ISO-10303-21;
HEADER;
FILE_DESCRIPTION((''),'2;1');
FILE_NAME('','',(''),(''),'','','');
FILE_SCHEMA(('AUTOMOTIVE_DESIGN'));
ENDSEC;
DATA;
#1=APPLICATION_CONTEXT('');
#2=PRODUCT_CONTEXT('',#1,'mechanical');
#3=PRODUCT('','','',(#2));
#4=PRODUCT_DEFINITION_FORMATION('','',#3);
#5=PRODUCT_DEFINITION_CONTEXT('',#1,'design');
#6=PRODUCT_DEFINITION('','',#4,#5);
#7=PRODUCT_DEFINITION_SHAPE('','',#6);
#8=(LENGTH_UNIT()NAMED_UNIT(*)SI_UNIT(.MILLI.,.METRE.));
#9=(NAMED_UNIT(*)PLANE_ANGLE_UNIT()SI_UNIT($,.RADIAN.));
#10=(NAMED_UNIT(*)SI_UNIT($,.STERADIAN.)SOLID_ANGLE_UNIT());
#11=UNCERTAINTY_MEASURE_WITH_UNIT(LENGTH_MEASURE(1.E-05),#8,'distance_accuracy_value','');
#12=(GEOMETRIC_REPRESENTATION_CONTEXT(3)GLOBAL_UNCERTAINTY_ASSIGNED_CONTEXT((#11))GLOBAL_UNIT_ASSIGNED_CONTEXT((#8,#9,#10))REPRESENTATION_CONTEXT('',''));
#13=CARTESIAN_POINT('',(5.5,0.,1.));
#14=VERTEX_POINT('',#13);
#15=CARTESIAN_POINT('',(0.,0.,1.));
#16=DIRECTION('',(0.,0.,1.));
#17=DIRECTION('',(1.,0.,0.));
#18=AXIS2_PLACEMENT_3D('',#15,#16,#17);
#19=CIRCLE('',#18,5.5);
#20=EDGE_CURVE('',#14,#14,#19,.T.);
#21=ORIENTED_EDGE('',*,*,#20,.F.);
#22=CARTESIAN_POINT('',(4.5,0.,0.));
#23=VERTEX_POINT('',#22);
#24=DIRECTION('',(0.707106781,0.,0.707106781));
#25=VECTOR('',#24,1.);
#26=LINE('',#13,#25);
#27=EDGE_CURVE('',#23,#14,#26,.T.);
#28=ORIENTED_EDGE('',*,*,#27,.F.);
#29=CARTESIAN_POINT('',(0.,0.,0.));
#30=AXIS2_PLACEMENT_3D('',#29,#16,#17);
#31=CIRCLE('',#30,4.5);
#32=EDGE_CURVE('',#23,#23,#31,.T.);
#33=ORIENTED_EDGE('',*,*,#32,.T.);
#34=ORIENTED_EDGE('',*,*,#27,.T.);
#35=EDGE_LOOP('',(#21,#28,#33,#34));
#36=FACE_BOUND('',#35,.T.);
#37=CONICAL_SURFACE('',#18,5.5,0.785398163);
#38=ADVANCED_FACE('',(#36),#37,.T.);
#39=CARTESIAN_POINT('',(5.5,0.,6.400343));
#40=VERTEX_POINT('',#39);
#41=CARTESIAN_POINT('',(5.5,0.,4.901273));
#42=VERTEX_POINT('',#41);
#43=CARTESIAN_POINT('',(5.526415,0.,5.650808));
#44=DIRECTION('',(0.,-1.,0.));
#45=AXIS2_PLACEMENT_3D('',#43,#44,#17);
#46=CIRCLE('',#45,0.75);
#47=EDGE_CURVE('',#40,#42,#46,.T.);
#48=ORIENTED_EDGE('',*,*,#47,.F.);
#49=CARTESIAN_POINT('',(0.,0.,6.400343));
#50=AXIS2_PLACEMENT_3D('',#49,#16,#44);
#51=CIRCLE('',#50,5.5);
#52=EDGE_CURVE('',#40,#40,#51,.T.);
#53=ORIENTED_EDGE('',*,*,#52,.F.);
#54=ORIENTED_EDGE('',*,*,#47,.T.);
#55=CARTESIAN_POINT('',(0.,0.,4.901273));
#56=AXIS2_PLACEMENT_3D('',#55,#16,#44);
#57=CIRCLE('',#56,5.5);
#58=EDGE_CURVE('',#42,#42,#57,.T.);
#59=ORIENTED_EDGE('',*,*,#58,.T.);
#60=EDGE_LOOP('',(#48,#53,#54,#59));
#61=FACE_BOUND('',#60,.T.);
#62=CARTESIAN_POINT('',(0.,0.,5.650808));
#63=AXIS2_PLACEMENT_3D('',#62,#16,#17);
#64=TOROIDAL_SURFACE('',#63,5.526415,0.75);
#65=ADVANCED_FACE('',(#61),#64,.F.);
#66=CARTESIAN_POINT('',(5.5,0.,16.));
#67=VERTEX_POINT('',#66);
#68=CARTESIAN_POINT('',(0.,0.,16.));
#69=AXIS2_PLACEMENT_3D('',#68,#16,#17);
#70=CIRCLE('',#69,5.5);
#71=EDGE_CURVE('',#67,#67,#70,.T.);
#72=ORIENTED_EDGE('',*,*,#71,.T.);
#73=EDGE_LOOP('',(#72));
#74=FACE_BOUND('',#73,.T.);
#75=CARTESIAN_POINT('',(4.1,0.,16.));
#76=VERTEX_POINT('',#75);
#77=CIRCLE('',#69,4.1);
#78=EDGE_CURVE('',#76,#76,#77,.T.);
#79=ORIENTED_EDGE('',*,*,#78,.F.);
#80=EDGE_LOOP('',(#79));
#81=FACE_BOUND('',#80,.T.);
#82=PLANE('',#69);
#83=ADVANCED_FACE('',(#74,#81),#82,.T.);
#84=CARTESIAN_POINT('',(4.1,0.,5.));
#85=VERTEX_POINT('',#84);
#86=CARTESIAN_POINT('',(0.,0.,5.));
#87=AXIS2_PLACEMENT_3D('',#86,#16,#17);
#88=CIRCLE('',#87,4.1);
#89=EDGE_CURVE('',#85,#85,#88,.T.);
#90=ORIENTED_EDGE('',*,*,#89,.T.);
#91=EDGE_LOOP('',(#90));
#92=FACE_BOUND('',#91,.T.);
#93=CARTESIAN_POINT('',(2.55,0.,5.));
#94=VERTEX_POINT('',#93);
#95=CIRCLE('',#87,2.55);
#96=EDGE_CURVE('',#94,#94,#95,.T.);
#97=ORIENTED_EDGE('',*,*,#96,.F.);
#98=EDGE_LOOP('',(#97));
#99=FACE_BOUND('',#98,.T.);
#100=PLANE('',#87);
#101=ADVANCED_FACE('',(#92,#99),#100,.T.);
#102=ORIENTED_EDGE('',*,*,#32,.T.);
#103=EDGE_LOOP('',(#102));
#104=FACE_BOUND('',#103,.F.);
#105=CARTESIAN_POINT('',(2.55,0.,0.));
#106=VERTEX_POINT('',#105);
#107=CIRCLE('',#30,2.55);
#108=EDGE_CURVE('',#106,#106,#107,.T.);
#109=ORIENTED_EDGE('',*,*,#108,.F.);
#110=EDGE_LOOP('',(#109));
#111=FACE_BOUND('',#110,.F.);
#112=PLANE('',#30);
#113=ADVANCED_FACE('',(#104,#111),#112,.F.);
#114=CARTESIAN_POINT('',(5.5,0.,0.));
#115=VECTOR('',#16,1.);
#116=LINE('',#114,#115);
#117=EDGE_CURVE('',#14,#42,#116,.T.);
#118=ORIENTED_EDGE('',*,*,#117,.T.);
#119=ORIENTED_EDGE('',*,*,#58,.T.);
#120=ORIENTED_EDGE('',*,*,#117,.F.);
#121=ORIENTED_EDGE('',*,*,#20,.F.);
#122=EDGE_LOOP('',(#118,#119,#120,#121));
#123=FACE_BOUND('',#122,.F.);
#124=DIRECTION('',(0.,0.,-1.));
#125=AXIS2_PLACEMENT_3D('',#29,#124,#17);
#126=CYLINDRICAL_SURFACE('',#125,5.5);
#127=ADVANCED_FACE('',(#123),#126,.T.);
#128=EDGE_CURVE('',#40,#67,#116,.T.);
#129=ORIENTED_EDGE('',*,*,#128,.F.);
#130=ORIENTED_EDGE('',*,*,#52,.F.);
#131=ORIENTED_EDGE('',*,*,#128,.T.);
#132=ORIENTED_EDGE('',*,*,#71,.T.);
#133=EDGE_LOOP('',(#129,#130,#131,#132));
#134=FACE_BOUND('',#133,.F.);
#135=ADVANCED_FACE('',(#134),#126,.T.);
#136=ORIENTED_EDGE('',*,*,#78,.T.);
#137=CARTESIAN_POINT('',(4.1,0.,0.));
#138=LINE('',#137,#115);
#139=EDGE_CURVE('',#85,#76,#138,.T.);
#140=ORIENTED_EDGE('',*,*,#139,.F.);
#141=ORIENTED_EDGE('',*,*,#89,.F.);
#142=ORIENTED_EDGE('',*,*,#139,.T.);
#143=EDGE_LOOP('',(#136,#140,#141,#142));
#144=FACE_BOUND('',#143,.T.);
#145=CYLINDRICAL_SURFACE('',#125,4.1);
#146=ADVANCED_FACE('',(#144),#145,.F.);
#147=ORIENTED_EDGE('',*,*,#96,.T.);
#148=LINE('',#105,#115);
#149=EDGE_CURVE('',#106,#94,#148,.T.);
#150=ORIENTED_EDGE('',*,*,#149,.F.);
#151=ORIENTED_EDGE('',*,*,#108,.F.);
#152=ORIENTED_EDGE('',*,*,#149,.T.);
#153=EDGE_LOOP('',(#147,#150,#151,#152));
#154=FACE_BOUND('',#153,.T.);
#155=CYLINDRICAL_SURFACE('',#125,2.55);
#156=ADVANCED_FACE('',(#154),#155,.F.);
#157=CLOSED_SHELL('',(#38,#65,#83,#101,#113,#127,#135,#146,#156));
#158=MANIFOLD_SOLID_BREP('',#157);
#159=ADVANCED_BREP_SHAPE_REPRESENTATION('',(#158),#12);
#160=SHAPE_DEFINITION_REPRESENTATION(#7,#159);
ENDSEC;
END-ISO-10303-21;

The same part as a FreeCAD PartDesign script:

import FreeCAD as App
import Part
import Sketcher
Q = App.Units.Quantity


def edges_at(feature, points):
    """Names of the edges that pass closest to the given points."""
    edges = feature.Shape.Edges
    near = lambda p: min(range(len(edges)), key=lambda i: edges[i].distToShape(Part.Vertex(*p))[0])
    return sorted({f"Edge{near(p) + 1}" for p in points})

doc = App.newDocument("Part")
params = doc.addObject("Spreadsheet::Sheet", "Params")
for row, (alias, value) in enumerate([
    ("sketch1_diameter", "11 mm"),
    ("sketch1_diameter2", "8.2 mm"),
    ("pad1_length", "16 mm"),
    ("sketch2_diameter", "8.2 mm"),
    ("sketch2_diameter2", "5.1 mm"),
    ("pad2_length", "5 mm"),
    ("chamfer_size", "1 mm"),
    ("sketch3_diameter", "1.5 mm"),
    ("groove_angle", "360 deg"),
], start=1):
    params.set(f"A{row}", alias)
    params.set(f"B{row}", "=" + value)
    params.setAlias(f"B{row}", alias)

body = doc.addObject("PartDesign::Body", "Body")

sketch1 = body.newObject("Sketcher::SketchObject", "Sketch")
sketch1.AttachmentSupport = (doc.getObject("XY_Plane"), [""])
sketch1.MapMode = "FlatFace"
sketch1.addGeometry([
    Part.Circle(App.Vector(0, 0, 0), App.Vector(0, 0, 1), 5.5),
    Part.Circle(App.Vector(0, 0, 0), App.Vector(0, 0, 1), 4.1),
], False)
sketch1.addConstraint([
    Sketcher.Constraint("Coincident", 0, 3, -1, 1),
    Sketcher.Constraint("Coincident", 1, 3, -1, 1),
    Sketcher.Constraint("Diameter", 0, Q("11 mm")),
    Sketcher.Constraint("Diameter", 1, Q("8.2 mm")),
])
sketch1.setExpression("Constraints[2]", "Params.sketch1_diameter")
sketch1.setExpression("Constraints[3]", "Params.sketch1_diameter2")
pad1 = body.newObject("PartDesign::Pad", "Pad")
pad1.Profile = sketch1
pad1.setExpression("Length", "Params.pad1_length")

sketch2 = body.newObject("Sketcher::SketchObject", "Sketch001")
sketch2.AttachmentSupport = (doc.getObject("XY_Plane"), [""])
sketch2.MapMode = "FlatFace"
sketch2.addGeometry([
    Part.Circle(App.Vector(0, 0, 0), App.Vector(0, 0, 1), 4.1),
    Part.Circle(App.Vector(0, 0, 0), App.Vector(0, 0, 1), 2.5),
], False)
sketch2.addConstraint([
    Sketcher.Constraint("Coincident", 0, 3, -1, 1),
    Sketcher.Constraint("Coincident", 1, 3, -1, 1),
    Sketcher.Constraint("Diameter", 0, Q("8.2 mm")),
    Sketcher.Constraint("Diameter", 1, Q("5.1 mm")),
])
sketch2.setExpression("Constraints[2]", "Params.sketch2_diameter")
sketch2.setExpression("Constraints[3]", "Params.sketch2_diameter2")
pad2 = body.newObject("PartDesign::Pad", "Pad001")
pad2.Profile = sketch2
pad2.setExpression("Length", "Params.pad2_length")
doc.recompute()

chamfer = body.newObject("PartDesign::Chamfer", "Chamfer")
chamfer.Base = (pad2, edges_at(pad2, [(-5.5, 0, 0)]))
chamfer.setExpression("Size", "Params.chamfer_size")

sketch3 = body.newObject("Sketcher::SketchObject", "Sketch002")
sketch3.AttachmentSupport = (doc.getObject("XZ_Plane"), [""])
sketch3.MapMode = "FlatFace"
sketch3.addGeometry(Part.Circle(App.Vector(5.5, 5.7, 0), App.Vector(0, 0, 1), 0.8), False)
sketch3.addConstraint([
    Sketcher.Constraint("Diameter", 0, Q("1.5 mm")),
    Sketcher.Constraint("DistanceX", -1, 1, 0, 3, Q("5.526415 mm")),
    Sketcher.Constraint("DistanceY", -1, 1, 0, 3, Q("5.650808 mm")),
])
sketch3.setExpression("Constraints[0]", "Params.sketch3_diameter")
groove = body.newObject("PartDesign::Groove", "Groove")
groove.Profile = sketch3
groove.ReferenceAxis = (sketch3, ["V_Axis"])
groove.setExpression("Angle", "Params.groove_angle")

doc.recompute()
